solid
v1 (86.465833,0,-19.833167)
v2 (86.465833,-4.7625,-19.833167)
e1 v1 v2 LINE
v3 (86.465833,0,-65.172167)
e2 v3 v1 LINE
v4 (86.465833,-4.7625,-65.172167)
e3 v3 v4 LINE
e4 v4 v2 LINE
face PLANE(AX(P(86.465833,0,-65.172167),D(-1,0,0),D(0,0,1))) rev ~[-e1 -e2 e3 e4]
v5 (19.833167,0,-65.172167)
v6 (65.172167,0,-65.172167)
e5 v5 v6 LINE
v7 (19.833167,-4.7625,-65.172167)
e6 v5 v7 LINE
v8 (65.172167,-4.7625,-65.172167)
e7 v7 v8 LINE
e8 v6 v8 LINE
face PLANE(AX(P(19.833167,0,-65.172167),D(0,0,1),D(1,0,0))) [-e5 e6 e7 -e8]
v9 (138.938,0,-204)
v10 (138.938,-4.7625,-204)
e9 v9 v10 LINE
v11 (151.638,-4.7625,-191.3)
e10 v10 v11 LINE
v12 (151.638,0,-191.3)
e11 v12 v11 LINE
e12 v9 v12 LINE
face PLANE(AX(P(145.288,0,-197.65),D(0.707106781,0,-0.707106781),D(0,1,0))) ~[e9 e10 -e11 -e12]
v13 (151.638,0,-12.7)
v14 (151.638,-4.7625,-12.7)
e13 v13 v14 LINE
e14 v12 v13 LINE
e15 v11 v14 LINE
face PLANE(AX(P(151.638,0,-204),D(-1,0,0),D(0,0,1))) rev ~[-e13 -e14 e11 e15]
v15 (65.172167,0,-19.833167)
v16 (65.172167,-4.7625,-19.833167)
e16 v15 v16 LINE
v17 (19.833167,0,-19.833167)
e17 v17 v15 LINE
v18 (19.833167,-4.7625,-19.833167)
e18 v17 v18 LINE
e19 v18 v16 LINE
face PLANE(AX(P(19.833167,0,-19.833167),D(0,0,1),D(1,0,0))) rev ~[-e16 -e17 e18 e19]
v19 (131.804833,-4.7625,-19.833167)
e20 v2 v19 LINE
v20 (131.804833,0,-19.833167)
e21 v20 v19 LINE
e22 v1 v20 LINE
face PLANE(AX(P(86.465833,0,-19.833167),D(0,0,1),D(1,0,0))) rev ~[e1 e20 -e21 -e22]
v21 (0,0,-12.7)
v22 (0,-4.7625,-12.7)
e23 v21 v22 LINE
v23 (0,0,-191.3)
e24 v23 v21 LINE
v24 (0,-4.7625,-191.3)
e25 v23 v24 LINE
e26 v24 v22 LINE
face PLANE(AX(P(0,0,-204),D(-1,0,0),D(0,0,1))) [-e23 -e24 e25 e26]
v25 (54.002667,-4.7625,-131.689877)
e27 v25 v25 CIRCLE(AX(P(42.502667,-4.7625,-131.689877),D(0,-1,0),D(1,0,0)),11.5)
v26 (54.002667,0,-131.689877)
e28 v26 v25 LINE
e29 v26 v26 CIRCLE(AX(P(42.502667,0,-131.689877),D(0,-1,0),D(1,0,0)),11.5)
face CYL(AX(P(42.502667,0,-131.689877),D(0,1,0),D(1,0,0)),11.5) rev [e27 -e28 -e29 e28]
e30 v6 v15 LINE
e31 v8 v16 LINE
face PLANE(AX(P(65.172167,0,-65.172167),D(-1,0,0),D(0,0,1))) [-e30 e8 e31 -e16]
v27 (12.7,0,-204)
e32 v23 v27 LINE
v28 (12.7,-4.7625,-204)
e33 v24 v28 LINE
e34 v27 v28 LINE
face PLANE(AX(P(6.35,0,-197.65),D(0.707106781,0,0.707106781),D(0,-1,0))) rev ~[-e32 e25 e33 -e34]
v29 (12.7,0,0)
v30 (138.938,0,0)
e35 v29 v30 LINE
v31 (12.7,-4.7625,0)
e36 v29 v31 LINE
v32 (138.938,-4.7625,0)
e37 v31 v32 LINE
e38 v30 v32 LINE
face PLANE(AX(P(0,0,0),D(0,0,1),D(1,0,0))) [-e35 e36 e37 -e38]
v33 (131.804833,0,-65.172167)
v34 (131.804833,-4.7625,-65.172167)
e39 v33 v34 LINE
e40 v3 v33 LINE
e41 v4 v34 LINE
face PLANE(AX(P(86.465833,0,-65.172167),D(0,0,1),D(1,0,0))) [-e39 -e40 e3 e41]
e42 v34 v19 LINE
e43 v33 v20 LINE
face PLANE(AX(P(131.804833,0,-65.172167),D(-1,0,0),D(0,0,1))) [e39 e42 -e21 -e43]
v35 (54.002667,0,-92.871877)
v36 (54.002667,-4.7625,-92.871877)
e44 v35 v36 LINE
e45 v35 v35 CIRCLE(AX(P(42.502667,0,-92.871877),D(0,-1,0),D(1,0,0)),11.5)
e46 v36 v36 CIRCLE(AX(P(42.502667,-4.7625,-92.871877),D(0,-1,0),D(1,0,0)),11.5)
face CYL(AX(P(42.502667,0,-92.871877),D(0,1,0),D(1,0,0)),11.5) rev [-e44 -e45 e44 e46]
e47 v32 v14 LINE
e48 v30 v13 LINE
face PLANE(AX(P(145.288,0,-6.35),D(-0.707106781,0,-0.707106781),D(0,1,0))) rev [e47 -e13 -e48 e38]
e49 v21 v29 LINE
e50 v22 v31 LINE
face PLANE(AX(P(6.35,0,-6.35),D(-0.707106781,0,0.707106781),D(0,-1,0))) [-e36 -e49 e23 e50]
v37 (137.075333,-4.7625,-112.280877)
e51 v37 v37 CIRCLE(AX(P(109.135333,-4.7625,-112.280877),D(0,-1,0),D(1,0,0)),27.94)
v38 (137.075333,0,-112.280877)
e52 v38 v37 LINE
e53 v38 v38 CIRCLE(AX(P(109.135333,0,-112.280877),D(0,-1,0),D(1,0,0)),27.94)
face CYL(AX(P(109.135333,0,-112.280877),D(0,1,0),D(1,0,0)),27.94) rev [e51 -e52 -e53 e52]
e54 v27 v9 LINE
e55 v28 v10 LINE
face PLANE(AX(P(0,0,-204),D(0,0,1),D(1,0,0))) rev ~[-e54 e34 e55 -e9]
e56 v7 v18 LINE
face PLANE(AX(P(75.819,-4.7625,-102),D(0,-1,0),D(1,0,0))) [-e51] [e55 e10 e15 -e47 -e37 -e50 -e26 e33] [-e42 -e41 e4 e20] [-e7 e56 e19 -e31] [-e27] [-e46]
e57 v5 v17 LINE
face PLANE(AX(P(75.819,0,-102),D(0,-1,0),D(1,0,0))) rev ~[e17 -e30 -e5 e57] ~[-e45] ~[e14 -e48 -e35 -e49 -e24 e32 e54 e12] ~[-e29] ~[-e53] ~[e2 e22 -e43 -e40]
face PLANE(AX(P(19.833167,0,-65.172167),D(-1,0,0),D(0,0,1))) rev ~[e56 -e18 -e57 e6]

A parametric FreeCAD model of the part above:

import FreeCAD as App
import Part
import Sketcher

V = App.Vector
Q = App.Units.Quantity


def edges_at(feature, points):
    """Names of the edges that pass closest to the given points."""
    edges = feature.Shape.Edges
    near = lambda p: min(range(len(edges)), key=lambda i: edges[i].distToShape(Part.Vertex(*p))[0])
    return sorted({f"Edge{near(p) + 1}" for p in points})


def add_polygon(sketch, points):
    """Adds a closed chain of lines whose ends are joined by coincident constraints."""
    first, n = sketch.GeometryCount, len(points)
    for a, b in zip(points, points[1:] + points[:1]):
        sketch.addGeometry(Part.LineSegment(App.Vector(*a, 0), App.Vector(*b, 0)), False)
    for i in range(n):
        sketch.addConstraint(Sketcher.Constraint("Coincident", first + i, 2, first + (i + 1) % n, 1))

doc = App.newDocument("Part")
params = doc.addObject("Spreadsheet::Sheet", "Params")
for row, (alias, value) in enumerate([
    ("sketch1_diameter", "2.2 in"),
    ("sketch1_width", "5.97 in"),
    ("sketch1_width2", "1.785 in"),
    ("pad1_length", "0.1875 in"),
    ("chamfer_size", "0.5 in"),
], start=1):
    params.set(f"A{row}", alias)
    params.set(f"B{row}", "=" + value)
    params.setAlias(f"B{row}", alias)

body = doc.addObject("PartDesign::Body", "Body")

# Sketch on XZ plane
sketch1 = body.newObject("Sketcher::SketchObject", "Sketch")
sketch1.AttachmentSupport = (doc.getObject("XZ_Plane"), [""])
sketch1.MapMode = "FlatFace"
add_polygon(sketch1, [(0, 0), (0, -204), (151.638, -204), (151.638, 0)])  # lines 0-3
sketch1.addGeometry(Part.Circle(V(42.502667, -131.689877, 0), V(0, 0, 1), 11.5), False)  # 4
sketch1.addGeometry(Part.Circle(V(42.502667, -92.871877, 0), V(0, 0, 1), 11.5), False)  # 5
sketch1.addGeometry(Part.Circle(V(109.135333, -112.280877, 0), V(0, 0, 1), 27.94), False)  # 6
add_polygon(sketch1, [(65.172167, -65.172167), (19.833167, -65.172167), (19.833167, -19.833167), (65.172167, -19.833167)])  # lines 7-10
add_polygon(sketch1, [(131.804833, -65.172167), (86.465833, -65.172167), (86.465833, -19.833167), (131.804833, -19.833167)])  # lines 11-14
sketch1.addConstraint(Sketcher.Constraint("Vertical", 0))
sketch1.addConstraint(Sketcher.Constraint("Horizontal", 1))
sketch1.addConstraint(Sketcher.Constraint("Vertical", 2))
sketch1.addConstraint(Sketcher.Constraint("Horizontal", 3))
sketch1.addConstraint(Sketcher.Constraint("Horizontal", 7))
sketch1.addConstraint(Sketcher.Constraint("Vertical", 8))
sketch1.addConstraint(Sketcher.Constraint("Horizontal", 9))
sketch1.addConstraint(Sketcher.Constraint("Vertical", 10))
sketch1.addConstraint(Sketcher.Constraint("Horizontal", 11))
sketch1.addConstraint(Sketcher.Constraint("Vertical", 12))
sketch1.addConstraint(Sketcher.Constraint("Horizontal", 13))
sketch1.addConstraint(Sketcher.Constraint("Vertical", 14))
sketch1.addConstraint(Sketcher.Constraint("Coincident", 3, 2, -1, 1))
sketch1.addConstraint(Sketcher.Constraint("Equal", 4, 5))
sketch1.addConstraint(Sketcher.Constraint("Horizontal", 10, 2, 11, 2))
sketch1.addConstraint(Sketcher.Constraint("Horizontal", 9, 2, 12, 2))
sketch1.addConstraint(Sketcher.Constraint("Vertical", 4, 3, 5, 3))
sketch1.addConstraint(Sketcher.Constraint("Equal", 9, 11))
sketch1.addConstraint(Sketcher.Constraint("Equal", 13, 8))
sketch1.addConstraint(Sketcher.Constraint("Diameter", 6, Q("2.2 in")))
sketch1.addConstraint(Sketcher.Constraint("DistanceX", 1, 1, 1, 2, Q("5.97 in")))
sketch1.addConstraint(Sketcher.Constraint("Diameter", 4, Q("23 mm")))
sketch1.addConstraint(Sketcher.Constraint("DistanceX", 7, 2, 7, 1, Q("1.785 in")))
sketch1.addConstraint(Sketcher.Constraint("DistanceY", 0, 2, 0, 1, Q("204 mm")))
sketch1.addConstraint(Sketcher.Constraint("DistanceX", 7, 2, 5, 3, Q("0.8925 in")))
sketch1.addConstraint(Sketcher.Constraint("DistanceX", 11, 2, 6, 3, Q("0.8925 in")))
sketch1.addConstraint(Sketcher.Constraint("DistanceY", 4, 3, 5, 3, Q("38.818 mm")))
sketch1.addConstraint(Sketcher.Constraint("DistanceY", 4, 3, 6, 3, Q("19.409 mm")))
sketch1.addConstraint(Sketcher.Constraint("DistanceY", 5, 3, 7, 2, Q("27.69971 mm")))
sketch1.addConstraint(Sketcher.Constraint("DistanceX", -1, 1, 4, 3, Q("42.502667 mm")))
sketch1.addConstraint(Sketcher.Constraint("DistanceY", 4, 3, -1, 1, Q("131.689877 mm")))
sketch1.addConstraint(Sketcher.Constraint("DistanceX", -1, 1, 6, 3, Q("109.135333 mm")))
sketch1.setExpression("Constraints[31]", "Params.sketch1_diameter")
sketch1.setExpression("Constraints[32]", "Params.sketch1_width")
sketch1.setExpression("Constraints[34]", "Params.sketch1_width2")
pad1 = body.newObject("PartDesign::Pad", "Pad")
pad1.Profile = sketch1
pad1.setExpression("Length", "Params.pad1_length")
doc.recompute()

chamfer = body.newObject("PartDesign::Chamfer", "Chamfer")
chamfer.Base = (pad1, edges_at(pad1, [
    (151.638, -2.381, 0),
    (0, -2.381, 0),
    (0, -2.381, -204),
    (151.638, -2.381, -204),
]))
chamfer.setExpression("Size", "Params.chamfer_size")

doc.recompute()
